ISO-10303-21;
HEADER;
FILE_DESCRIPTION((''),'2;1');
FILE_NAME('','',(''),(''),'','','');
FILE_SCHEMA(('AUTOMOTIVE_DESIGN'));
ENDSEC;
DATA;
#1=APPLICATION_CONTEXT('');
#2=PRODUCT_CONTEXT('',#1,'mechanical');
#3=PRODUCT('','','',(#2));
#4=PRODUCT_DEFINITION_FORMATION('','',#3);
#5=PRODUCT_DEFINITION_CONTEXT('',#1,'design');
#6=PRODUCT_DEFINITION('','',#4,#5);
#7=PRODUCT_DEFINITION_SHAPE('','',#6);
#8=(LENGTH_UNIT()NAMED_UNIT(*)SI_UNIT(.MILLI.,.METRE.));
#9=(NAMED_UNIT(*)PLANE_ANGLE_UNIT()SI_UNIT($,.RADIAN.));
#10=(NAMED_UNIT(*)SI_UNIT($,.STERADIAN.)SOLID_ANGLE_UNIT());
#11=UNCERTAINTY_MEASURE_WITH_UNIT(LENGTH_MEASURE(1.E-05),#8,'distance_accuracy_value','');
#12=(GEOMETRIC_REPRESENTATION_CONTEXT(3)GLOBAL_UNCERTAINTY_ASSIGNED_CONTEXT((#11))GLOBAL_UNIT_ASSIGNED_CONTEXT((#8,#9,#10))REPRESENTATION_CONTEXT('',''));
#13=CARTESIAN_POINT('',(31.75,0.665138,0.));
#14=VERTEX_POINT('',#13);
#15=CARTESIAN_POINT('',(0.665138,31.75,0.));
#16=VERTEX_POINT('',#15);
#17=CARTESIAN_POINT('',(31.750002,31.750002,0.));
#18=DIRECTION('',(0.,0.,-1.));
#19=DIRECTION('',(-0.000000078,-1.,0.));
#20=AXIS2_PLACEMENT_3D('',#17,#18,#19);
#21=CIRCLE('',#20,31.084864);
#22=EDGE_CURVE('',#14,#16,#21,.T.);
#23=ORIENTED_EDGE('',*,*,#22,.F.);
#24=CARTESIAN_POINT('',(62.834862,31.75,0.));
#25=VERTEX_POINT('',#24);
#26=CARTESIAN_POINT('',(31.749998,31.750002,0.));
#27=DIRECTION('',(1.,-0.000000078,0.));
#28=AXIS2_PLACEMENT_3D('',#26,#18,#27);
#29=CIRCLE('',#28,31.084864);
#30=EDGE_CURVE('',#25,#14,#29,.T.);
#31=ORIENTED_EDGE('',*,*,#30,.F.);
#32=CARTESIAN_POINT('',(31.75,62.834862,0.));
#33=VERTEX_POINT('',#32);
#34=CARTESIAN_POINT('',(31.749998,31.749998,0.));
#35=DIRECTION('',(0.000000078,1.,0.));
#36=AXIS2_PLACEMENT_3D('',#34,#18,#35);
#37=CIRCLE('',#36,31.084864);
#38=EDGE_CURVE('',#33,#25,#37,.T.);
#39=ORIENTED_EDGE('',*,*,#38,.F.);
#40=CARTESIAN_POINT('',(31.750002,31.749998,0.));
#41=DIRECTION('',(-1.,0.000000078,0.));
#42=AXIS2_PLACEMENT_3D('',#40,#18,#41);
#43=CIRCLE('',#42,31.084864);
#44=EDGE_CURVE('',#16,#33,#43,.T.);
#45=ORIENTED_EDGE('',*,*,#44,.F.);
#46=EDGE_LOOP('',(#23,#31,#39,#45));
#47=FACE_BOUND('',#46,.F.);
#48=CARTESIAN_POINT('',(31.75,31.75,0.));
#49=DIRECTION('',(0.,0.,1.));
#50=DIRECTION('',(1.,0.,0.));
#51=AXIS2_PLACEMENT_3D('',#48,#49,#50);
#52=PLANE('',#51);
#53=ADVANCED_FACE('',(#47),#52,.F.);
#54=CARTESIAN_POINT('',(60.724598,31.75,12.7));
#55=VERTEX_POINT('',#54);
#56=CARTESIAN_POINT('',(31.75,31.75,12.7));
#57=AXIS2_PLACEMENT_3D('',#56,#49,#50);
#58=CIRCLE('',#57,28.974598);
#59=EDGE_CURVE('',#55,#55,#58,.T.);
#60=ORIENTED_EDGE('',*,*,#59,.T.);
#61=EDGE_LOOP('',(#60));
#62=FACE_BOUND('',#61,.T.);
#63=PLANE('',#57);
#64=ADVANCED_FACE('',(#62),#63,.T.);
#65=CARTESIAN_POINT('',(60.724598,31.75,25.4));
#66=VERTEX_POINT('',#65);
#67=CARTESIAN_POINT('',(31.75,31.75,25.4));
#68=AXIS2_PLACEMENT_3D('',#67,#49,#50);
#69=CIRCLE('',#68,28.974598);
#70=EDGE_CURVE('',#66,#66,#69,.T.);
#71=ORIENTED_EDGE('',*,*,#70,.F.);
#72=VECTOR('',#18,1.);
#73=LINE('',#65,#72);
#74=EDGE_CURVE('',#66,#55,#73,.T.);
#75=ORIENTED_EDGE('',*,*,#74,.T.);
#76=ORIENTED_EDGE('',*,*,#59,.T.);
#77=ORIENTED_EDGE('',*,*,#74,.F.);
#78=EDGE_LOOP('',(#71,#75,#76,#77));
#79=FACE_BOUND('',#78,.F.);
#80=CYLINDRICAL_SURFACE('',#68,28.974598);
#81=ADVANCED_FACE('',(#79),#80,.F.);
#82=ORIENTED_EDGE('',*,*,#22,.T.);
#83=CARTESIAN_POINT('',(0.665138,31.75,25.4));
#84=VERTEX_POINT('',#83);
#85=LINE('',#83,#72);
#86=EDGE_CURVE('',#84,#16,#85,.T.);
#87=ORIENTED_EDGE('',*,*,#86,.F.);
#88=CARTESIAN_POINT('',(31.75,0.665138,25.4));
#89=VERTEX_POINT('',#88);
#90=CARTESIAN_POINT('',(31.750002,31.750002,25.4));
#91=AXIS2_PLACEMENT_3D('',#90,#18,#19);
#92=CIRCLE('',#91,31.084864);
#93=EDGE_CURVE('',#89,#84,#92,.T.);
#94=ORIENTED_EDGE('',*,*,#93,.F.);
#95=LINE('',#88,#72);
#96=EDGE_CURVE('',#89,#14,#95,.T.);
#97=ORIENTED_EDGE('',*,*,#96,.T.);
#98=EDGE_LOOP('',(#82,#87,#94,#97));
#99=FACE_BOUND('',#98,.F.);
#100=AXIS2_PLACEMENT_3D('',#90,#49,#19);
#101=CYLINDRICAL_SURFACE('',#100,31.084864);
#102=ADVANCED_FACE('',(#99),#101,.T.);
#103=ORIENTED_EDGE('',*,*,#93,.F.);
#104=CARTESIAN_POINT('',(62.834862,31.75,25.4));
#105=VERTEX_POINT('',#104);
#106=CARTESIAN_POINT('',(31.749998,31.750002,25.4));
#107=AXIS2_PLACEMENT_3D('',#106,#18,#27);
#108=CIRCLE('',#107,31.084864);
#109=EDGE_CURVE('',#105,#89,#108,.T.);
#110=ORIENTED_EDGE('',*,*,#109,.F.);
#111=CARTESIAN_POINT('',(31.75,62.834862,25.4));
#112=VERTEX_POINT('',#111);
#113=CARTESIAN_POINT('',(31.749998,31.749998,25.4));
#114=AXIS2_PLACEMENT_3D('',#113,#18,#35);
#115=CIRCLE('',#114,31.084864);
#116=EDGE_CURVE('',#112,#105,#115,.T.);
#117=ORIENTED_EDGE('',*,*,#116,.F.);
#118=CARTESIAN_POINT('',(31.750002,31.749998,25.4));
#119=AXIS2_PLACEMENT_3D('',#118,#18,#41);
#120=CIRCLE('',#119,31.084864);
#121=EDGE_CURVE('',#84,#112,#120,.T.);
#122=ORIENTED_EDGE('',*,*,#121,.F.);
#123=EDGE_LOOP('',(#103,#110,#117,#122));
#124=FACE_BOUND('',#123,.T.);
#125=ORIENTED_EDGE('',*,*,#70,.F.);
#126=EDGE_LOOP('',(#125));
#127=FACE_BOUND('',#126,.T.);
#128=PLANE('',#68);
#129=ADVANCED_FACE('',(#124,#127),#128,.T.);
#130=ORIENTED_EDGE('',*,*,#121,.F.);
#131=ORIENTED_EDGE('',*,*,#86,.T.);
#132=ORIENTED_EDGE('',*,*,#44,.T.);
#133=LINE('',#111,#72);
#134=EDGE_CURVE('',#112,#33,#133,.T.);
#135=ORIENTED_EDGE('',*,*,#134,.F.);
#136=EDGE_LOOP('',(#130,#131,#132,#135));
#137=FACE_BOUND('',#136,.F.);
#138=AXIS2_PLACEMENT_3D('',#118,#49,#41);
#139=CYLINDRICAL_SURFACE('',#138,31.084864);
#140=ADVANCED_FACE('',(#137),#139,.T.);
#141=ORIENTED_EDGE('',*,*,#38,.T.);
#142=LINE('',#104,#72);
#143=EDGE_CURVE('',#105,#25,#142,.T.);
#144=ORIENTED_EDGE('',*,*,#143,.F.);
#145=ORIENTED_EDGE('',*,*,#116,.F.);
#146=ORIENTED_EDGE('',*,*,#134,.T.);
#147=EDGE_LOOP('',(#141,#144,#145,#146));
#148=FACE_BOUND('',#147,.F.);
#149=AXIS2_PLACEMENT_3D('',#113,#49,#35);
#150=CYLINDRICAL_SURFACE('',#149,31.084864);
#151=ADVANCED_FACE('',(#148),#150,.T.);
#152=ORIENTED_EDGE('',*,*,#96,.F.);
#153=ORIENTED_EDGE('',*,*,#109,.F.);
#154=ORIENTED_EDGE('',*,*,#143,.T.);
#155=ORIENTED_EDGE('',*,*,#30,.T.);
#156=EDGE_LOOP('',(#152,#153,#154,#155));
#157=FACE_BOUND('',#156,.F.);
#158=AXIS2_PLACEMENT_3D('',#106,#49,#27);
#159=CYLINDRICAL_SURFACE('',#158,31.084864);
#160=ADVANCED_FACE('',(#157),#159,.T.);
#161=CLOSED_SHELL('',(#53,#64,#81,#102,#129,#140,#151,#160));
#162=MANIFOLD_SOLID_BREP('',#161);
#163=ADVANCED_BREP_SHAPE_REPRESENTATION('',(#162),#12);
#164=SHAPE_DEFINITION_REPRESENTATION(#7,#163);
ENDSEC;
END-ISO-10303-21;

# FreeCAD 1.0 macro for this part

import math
import FreeCAD as App
import Part
import Sketcher

V = App.Vector
Q = App.Units.Quantity

doc = App.newDocument("Part")
body = doc.addObject("PartDesign::Body", "Body")

# Sketch on XY plane
sketch1 = doc.addObject("Sketcher::SketchObject", "Sketch")
body.addObject(sketch1)
sketch1.AttachmentSupport = (doc.XY_Plane, [""])
sketch1.MapMode = "FlatFace"
sketch1.addGeometry([
    Part.LineSegment(V(0, 64, 0), V(0, 0, 0)),
    Part.LineSegment(V(0, 0, 0), V(64, 0, 0)),
    Part.LineSegment(V(64, 0, 0), V(64, 64, 0)),
    Part.LineSegment(V(64, 64, 0), V(0, 64, 0)),
], False)
sketch1.addConstraint([
    Sketcher.Constraint("Coincident", 0, 2, 1, 1),
    Sketcher.Constraint("Coincident", 1, 2, 2, 1),
    Sketcher.Constraint("Coincident", 2, 2, 3, 1),
    Sketcher.Constraint("Coincident", 3, 2, 0, 1),
    Sketcher.Constraint("Vertical", 0),
    Sketcher.Constraint("Horizontal", 1),
    Sketcher.Constraint("Vertical", 2),
    Sketcher.Constraint("Horizontal", 3),
    Sketcher.Constraint("Coincident", 0, 2, -1, 1),
    Sketcher.Constraint("Equal", 3, 0),
    Sketcher.Constraint("DistanceX", 1, 1, 1, 2, Q("2.5 in")),
])
pad1 = doc.addObject("PartDesign::Pad", "Pad")
body.addObject(pad1)
pad1.Profile = sketch1
pad1.Length = Q("1 in")

# Sketch on XY plane
sketch2 = doc.addObject("Sketcher::SketchObject", "Sketch001")
body.addObject(sketch2)
sketch2.AttachmentSupport = (doc.XY_Plane, [""])
sketch2.MapMode = "FlatFace"
sketch2.AttachmentOffset = App.Placement(V(0, 0, 1 * 25.4), App.Rotation())
sketch2.addGeometry([
    Part.LineSegment(V(0, 64, 0), V(0, 0, 0)),  # 0
    Part.LineSegment(V(0, 0, 0), V(64, 0, 0)),  # 1
    Part.LineSegment(V(64, 0, 0), V(64, 64, 0)),  # 2
    Part.LineSegment(V(64, 64, 0), V(0, 64, 0)),  # 3
    Part.ArcOfCircle(Part.Circle(V(32, 32, 0), V(0, 0, 1), 31), math.radians(90), math.radians(180)),  # 4
    Part.ArcOfCircle(Part.Circle(V(32, 32, 0), V(0, 0, 1), 31), math.radians(0), math.radians(90)),  # 5
    Part.ArcOfCircle(Part.Circle(V(32, 32, 0), V(0, 0, 1), 31), math.radians(-90), math.radians(0)),  # 6
    Part.ArcOfCircle(Part.Circle(V(32, 32, 0), V(0, 0, 1), 31), math.radians(-180), math.radians(-90)),  # 7
], False)
sketch2.addConstraint([
    Sketcher.Constraint("Coincident", 0, 2, 1, 1),
    Sketcher.Constraint("Coincident", 1, 2, 2, 1),
    Sketcher.Constraint("Coincident", 2, 2, 3, 1),
    Sketcher.Constraint("Coincident", 3, 2, 0, 1),
    Sketcher.Constraint("Tangent", 4, 1, 5, 2),
    Sketcher.Constraint("Tangent", 5, 1, 6, 2),
    Sketcher.Constraint("Tangent", 6, 1, 7, 2),
    Sketcher.Constraint("Tangent", 7, 1, 4, 2),
    Sketcher.Constraint("Vertical", 0),
    Sketcher.Constraint("Horizontal", 1),
    Sketcher.Constraint("Vertical", 2),
    Sketcher.Constraint("Horizontal", 3),
    Sketcher.Constraint("Coincident", 0, 2, -1, 1),
    Sketcher.Constraint("Equal", 4, 5),
    Sketcher.Constraint("Horizontal", 5, 1, 7, 1),
    Sketcher.Constraint("Vertical", 4, 1, 6, 1),
    Sketcher.Constraint("Equal", 3, 0),
    Sketcher.Constraint("DistanceX", 1, 1, 1, 2, Q("2.5 in")),
    Sketcher.Constraint("DistanceX", -1, 1, 4, 3, Q("1.2500001 in")),
    Sketcher.Constraint("DistanceY", -1, 1, 4, 3, Q("1.2499999 in")),
    Sketcher.Constraint("DistanceX", -1, 1, 4, 1, Q("1.25 in")),
    Sketcher.Constraint("DistanceY", -1, 1, 5, 1, Q("1.25 in")),
    Sketcher.Constraint("Radius", 4, Q("31.084864 mm")),
])
pocket1 = doc.addObject("PartDesign::Pocket", "Pocket")
body.addObject(pocket1)
pocket1.Profile = sketch2
pocket1.Length = Q("1 in")

# Sketch on XY plane
sketch3 = doc.addObject("Sketcher::SketchObject", "Sketch002")
body.addObject(sketch3)
sketch3.AttachmentSupport = (doc.XY_Plane, [""])
sketch3.MapMode = "FlatFace"
sketch3.AttachmentOffset = App.Placement(V(0, 0, 1 * 25.4), App.Rotation())
sketch3.addGeometry(Part.Circle(V(32, 32, 0), V(0, 0, 1), 29), False)
sketch3.addConstraint([
    Sketcher.Constraint("DistanceX", -1, 1, 0, 3, Q("1.25 in")),
    Sketcher.Constraint("DistanceY", -1, 1, 0, 3, Q("1.25 in")),
    Sketcher.Constraint("Diameter", 0, Q("57.949196 mm")),
])
pocket2 = doc.addObject("PartDesign::Pocket", "Pocket001")
body.addObject(pocket2)
pocket2.Profile = sketch3
pocket2.Length = Q("0.5 in")

doc.recompute()
